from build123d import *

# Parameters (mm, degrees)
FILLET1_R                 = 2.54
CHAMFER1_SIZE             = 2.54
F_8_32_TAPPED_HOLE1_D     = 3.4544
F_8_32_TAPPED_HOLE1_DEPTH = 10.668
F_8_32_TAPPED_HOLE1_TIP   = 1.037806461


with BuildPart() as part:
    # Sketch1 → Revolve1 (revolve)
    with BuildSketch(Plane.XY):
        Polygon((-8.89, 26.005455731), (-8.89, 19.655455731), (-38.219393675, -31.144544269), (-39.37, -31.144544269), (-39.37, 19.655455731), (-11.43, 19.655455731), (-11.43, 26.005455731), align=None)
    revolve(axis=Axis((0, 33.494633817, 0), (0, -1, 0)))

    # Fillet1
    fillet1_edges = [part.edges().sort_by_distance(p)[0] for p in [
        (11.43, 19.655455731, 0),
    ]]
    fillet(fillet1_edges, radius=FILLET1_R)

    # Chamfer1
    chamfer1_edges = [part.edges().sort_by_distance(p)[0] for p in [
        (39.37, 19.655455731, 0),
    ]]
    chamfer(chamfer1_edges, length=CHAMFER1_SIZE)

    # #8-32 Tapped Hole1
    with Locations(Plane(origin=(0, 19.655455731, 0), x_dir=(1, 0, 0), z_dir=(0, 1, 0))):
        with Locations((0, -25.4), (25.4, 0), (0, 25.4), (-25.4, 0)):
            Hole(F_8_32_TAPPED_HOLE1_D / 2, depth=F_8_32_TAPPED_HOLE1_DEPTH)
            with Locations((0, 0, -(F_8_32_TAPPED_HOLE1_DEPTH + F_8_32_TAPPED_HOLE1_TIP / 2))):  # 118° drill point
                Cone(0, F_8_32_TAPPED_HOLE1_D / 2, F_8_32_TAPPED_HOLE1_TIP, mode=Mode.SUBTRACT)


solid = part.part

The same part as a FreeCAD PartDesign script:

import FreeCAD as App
import Part
import Sketcher

V = App.Vector
Q = App.Units.Quantity


def edges_at(feature, points):
    """Names of the edges that pass closest to the given points."""
    edges = feature.Shape.Edges
    near = lambda p: min(range(len(edges)), key=lambda i: edges[i].distToShape(Part.Vertex(*p))[0])
    return sorted({f"Edge{near(p) + 1}" for p in points})

doc = App.newDocument("Part")
params = doc.addObject("Spreadsheet::Sheet", "Params")
for row, (alias, value) in enumerate([
    ("sketch1_height", "2 in"),
    ("sketch1_width", "0.1 in"),
    ("sketch1_width2", "1.1 in"),
    ("sketch1_height2", "0.25 in"),
    ("revolution_angle", "360 deg"),
    ("fillet_radius", "0.1 in"),
    ("chamfer_size", "0.1 in"),
    ("sketch2_diameter", "0.136 in"),
    ("hole_diameter", "0.136 in"),
    ("hole_depth", "0.42 in"),
], start=1):
    params.set(f"A{row}", alias)
    params.set(f"B{row}", "=" + value)
    params.setAlias(f"B{row}", alias)

body = doc.addObject("PartDesign::Body", "Body")

# Sketch on XY plane
sketch1 = doc.addObject("Sketcher::SketchObject", "Sketch")
body.addObject(sketch1)
sketch1.AttachmentSupport = (doc.XY_Plane, [""])
sketch1.MapMode = "FlatFace"
sketch1.addGeometry([
    Part.LineSegment(V(-8.89, 19.655456, 0), V(-8.89, 26.005456, 0)),  # 0
    Part.LineSegment(V(-8.89, 26.005456, 0), V(-11.43, 26.005456, 0)),  # 1
    Part.LineSegment(V(-11.43, 26.005456, 0), V(-11.43, 19.655456, 0)),  # 2
    Part.LineSegment(V(-11.43, 19.655456, 0), V(-39.37, 19.655456, 0)),  # 3
    Part.LineSegment(V(-39.37, 19.655456, 0), V(-39.37, -31.144544, 0)),  # 4
    Part.LineSegment(V(-39.37, -31.144544, 0), V(-38.219394, -31.144544, 0)),  # 5
    Part.LineSegment(V(-38.219394, -31.144544, 0), V(-8.89, 19.655456, 0)),  # 6
], False)
sketch1.addConstraint([
    Sketcher.Constraint("Coincident", 0, 2, 1, 1),
    Sketcher.Constraint("Coincident", 1, 2, 2, 1),
    Sketcher.Constraint("Coincident", 2, 2, 3, 1),
    Sketcher.Constraint("Coincident", 3, 2, 4, 1),
    Sketcher.Constraint("Coincident", 4, 2, 5, 1),
    Sketcher.Constraint("Coincident", 5, 2, 6, 1),
    Sketcher.Constraint("Coincident", 6, 2, 0, 1),
    Sketcher.Constraint("Vertical", 0),
    Sketcher.Constraint("Horizontal", 1),
    Sketcher.Constraint("Vertical", 2),
    Sketcher.Constraint("Horizontal", 3),
    Sketcher.Constraint("Vertical", 4),
    Sketcher.Constraint("Horizontal", 5),
    Sketcher.Constraint("Horizontal", 3, 2, 6, 2),
    Sketcher.Constraint("DistanceY", 4, 2, 4, 1, Q("2 in")),
    Sketcher.Constraint("DistanceX", 1, 2, 1, 1, Q("0.1 in")),
    Sketcher.Constraint("DistanceX", 3, 2, 3, 1, Q("1.1 in")),
    Sketcher.Constraint("Angle", 6, Q("60 deg")),
    Sketcher.Constraint("DistanceY", 0, 1, 0, 2, Q("0.25 in")),
    Sketcher.Constraint("DistanceX", 0, 2, -1, 1, Q("0.35 in")),
    Sketcher.Constraint("DistanceY", -1, 1, 0, 2, Q("26.005456 mm")),
])
sketch1.setExpression("Constraints[14]", "Params.sketch1_height")
sketch1.setExpression("Constraints[15]", "Params.sketch1_width")
sketch1.setExpression("Constraints[16]", "Params.sketch1_width2")
sketch1.setExpression("Constraints[18]", "Params.sketch1_height2")
revolution = doc.addObject("PartDesign::Revolution", "Revolution")
body.addObject(revolution)
revolution.Profile = sketch1
revolution.ReferenceAxis = (sketch1, ["V_Axis"])
revolution.setExpression("Angle", "Params.revolution_angle")
doc.recompute()

fillet = doc.addObject("PartDesign::Fillet", "Fillet")
body.addObject(fillet)
fillet.Base = (revolution, edges_at(revolution, [(11.43, 19.655, 0)]))
fillet.setExpression("Radius", "Params.fillet_radius")
doc.recompute()

chamfer = doc.addObject("PartDesign::Chamfer", "Chamfer")
body.addObject(chamfer)
chamfer.Base = (fillet, edges_at(fillet, [(39.37, 19.655, 0)]))
chamfer.setExpression("Size", "Params.chamfer_size")

# Sketch on XZ plane
sketch2 = doc.addObject("Sketcher::SketchObject", "Sketch001")
body.addObject(sketch2)
sketch2.AttachmentSupport = (doc.XZ_Plane, [""])
sketch2.MapMode = "FlatFace"
sketch2.AttachmentOffset = App.Placement(V(0, 0, -19.655456), App.Rotation())
sketch2.addGeometry([
    Part.Circle(V(0, 25.4, 0), V(0, 0, 1), 1.7272),
    Part.Circle(V(25.4, 0, 0), V(0, 0, 1), 1.7272),
    Part.Circle(V(0, -25.4, 0), V(0, 0, 1), 1.7272),
    Part.Circle(V(-25.4, 0, 0), V(0, 0, 1), 1.7272),
], False)
sketch2.addConstraint([
    Sketcher.Constraint("Equal", 0, 1),
    Sketcher.Constraint("Equal", 1, 2),
    Sketcher.Constraint("Equal", 2, 3),
    Sketcher.Constraint("Symmetric", 0, 3, 2, 3, -1, 1),
    Sketcher.Constraint("Symmetric", 1, 3, 3, 3, -1, 1),
    Sketcher.Constraint("PointOnObject", 0, 3, -2),
    Sketcher.Constraint("PointOnObject", 1, 3, -1),
    Sketcher.Constraint("Diameter", 0, Q("0.136 in")),
    Sketcher.Constraint("DistanceY", -1, 1, 0, 3, Q("1 in")),
    Sketcher.Constraint("DistanceX", -1, 1, 1, 3, Q("1 in")),
])
sketch2.setExpression("Constraints[7]", "Params.sketch2_diameter")
doc.recompute()
hole = doc.addObject("PartDesign::Hole", "Hole")
body.addObject(hole)
hole.Profile = sketch2
hole.ThreadType = "None"
hole.setExpression("Diameter", "Params.hole_diameter")
hole.DepthType = "Dimension"
hole.setExpression("Depth", "Params.hole_depth")
hole.DrillPoint = "Angled"
hole.DrillPointAngle = 118
hole.Reversed = True

doc.recompute()
